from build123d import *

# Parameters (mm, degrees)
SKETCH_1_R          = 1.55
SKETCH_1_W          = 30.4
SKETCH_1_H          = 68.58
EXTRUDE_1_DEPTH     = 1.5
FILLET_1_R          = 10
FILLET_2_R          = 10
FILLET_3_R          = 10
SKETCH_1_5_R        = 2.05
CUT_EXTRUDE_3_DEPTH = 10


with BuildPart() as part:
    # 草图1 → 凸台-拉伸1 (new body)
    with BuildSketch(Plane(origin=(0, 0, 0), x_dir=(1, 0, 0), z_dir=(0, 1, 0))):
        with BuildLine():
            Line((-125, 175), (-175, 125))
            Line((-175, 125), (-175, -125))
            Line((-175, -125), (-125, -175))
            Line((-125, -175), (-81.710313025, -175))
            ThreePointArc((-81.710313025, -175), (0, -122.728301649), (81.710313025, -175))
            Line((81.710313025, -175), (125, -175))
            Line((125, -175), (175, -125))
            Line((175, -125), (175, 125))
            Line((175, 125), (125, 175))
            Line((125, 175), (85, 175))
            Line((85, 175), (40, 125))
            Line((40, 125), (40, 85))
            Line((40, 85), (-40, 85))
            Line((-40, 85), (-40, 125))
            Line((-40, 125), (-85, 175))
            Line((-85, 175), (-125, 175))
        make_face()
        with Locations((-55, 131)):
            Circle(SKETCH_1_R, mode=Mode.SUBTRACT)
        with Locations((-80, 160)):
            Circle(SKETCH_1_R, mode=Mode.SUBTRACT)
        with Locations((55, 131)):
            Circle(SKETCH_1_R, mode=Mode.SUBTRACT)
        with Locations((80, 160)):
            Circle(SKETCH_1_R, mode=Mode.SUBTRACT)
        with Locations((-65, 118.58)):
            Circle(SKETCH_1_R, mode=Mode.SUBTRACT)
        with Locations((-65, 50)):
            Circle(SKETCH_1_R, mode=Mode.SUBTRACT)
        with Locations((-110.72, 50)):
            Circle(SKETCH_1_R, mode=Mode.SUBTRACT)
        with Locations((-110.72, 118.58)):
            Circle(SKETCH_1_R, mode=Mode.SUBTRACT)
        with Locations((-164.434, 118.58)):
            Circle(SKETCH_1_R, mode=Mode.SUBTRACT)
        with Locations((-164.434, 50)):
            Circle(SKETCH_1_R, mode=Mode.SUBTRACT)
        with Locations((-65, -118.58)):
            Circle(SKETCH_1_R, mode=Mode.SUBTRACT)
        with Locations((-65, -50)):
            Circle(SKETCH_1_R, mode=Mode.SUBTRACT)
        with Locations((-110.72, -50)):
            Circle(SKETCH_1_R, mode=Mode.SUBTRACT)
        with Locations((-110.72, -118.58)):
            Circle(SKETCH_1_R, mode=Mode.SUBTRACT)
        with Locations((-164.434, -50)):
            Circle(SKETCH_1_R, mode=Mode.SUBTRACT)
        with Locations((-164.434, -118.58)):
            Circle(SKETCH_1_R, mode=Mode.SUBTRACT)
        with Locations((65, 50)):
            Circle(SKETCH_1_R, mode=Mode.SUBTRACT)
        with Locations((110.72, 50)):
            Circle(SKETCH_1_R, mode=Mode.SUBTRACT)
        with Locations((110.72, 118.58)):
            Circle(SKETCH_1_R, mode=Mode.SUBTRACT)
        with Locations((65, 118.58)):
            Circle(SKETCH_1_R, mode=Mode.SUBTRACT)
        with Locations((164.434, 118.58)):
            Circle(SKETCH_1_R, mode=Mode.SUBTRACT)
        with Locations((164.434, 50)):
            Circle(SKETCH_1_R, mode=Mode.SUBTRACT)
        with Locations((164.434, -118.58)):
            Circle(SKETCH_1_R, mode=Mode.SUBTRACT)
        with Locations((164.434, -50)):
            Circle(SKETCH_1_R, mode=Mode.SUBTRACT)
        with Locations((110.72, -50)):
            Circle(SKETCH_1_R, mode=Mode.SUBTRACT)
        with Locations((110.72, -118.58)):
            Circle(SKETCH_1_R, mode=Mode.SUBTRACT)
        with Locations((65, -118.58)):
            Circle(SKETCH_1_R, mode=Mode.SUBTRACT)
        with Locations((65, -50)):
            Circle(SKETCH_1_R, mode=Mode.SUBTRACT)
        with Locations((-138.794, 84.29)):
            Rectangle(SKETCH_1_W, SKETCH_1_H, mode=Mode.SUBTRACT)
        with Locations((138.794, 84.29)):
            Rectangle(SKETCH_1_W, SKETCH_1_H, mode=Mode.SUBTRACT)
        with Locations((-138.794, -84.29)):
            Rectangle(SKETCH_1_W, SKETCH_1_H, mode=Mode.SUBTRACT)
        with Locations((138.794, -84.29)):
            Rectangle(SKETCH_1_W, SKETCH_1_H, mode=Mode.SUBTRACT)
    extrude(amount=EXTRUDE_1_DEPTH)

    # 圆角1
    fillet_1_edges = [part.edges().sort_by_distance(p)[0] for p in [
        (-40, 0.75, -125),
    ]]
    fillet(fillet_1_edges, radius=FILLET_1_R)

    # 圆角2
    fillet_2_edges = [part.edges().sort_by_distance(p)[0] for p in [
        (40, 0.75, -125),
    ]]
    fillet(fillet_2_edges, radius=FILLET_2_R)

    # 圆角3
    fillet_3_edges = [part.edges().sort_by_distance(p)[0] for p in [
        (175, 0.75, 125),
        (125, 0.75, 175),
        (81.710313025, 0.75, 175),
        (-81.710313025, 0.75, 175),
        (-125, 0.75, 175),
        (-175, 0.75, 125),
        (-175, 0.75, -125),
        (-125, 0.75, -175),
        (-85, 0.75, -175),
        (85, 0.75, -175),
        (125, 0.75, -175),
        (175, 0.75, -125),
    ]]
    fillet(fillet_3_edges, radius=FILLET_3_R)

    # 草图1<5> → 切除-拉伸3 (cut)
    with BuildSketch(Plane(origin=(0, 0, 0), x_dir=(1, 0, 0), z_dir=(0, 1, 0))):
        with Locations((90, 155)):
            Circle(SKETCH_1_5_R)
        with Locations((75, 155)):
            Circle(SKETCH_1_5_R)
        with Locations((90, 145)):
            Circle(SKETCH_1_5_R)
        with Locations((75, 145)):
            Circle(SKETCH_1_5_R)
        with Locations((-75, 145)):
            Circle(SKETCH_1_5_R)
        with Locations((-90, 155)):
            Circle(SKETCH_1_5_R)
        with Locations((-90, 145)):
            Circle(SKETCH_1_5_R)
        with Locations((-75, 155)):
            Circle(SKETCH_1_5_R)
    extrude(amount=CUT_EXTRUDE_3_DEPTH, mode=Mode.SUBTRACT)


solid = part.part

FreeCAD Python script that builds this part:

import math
import FreeCAD as App
import Part
import Sketcher


def edges_at(feature, points):
    """Names of the edges that pass closest to the given points."""
    edges = feature.Shape.Edges
    near = lambda p: min(range(len(edges)), key=lambda i: edges[i].distToShape(Part.Vertex(*p))[0])
    return sorted({f"Edge{near(p) + 1}" for p in points})

doc = App.newDocument("Part")
body = doc.addObject("PartDesign::Body", "Body")

sketch1 = body.newObject("Sketcher::SketchObject", "Sketch")
sketch1.AttachmentSupport = (doc.getObject("XZ_Plane"), [""])
sketch1.MapMode = "FlatFace"
sketch1.addGeometry([
    Part.LineSegment(App.Vector(-125, -175, 0), App.Vector(-175, -125, 0)),
    Part.LineSegment(App.Vector(-175, -125, 0), App.Vector(-175, 125, 0)),
    Part.LineSegment(App.Vector(-175, 125, 0), App.Vector(-125, 175, 0)),
    Part.LineSegment(App.Vector(-125, 175, 0), App.Vector(-81.710313, 175, 0)),
    Part.ArcOfCircle(Part.Circle(App.Vector(0, 212.728302, 0), App.Vector(0, 0, 1), 90), math.radians(-155.215698), math.radians(-24.784302)),
    Part.LineSegment(App.Vector(81.710313, 175, 0), App.Vector(125, 175, 0)),
    Part.LineSegment(App.Vector(125, 175, 0), App.Vector(175, 125, 0)),
    Part.LineSegment(App.Vector(175, 125, 0), App.Vector(175, -125, 0)),
    Part.LineSegment(App.Vector(175, -125, 0), App.Vector(125, -175, 0)),
    Part.LineSegment(App.Vector(125, -175, 0), App.Vector(85, -175, 0)),
    Part.LineSegment(App.Vector(85, -175, 0), App.Vector(40, -125, 0)),
    Part.LineSegment(App.Vector(40, -125, 0), App.Vector(40, -85, 0)),
    Part.LineSegment(App.Vector(40, -85, 0), App.Vector(-40, -85, 0)),
    Part.LineSegment(App.Vector(-40, -85, 0), App.Vector(-40, -125, 0)),
    Part.LineSegment(App.Vector(-40, -125, 0), App.Vector(-85, -175, 0)),
    Part.LineSegment(App.Vector(-85, -175, 0), App.Vector(-125, -175, 0)),
    Part.Circle(App.Vector(-164.434, 118.58, 0), App.Vector(0, 0, 1), 1.55),
    Part.Circle(App.Vector(-110.72, 118.58, 0), App.Vector(0, 0, 1), 1.55),
    Part.LineSegment(App.Vector(-123.594, 118.58, 0), App.Vector(-153.994, 118.58, 0)),
    Part.LineSegment(App.Vector(-153.994, 118.58, 0), App.Vector(-153.994, 50, 0)),
    Part.LineSegment(App.Vector(-153.994, 50, 0), App.Vector(-123.594, 50, 0)),
    Part.LineSegment(App.Vector(-123.594, 50, 0), App.Vector(-123.594, 118.58, 0)),
    Part.Circle(App.Vector(-164.434, 50, 0), App.Vector(0, 0, 1), 1.55),
    Part.Circle(App.Vector(-110.72, 50, 0), App.Vector(0, 0, 1), 1.55),
    Part.Circle(App.Vector(-65, 118.58, 0), App.Vector(0, 0, 1), 1.55),
    Part.Circle(App.Vector(-65, 50, 0), App.Vector(0, 0, 1), 1.55),
    Part.Circle(App.Vector(65, 118.58, 0), App.Vector(0, 0, 1), 1.55),
    Part.Circle(App.Vector(65, 50, 0), App.Vector(0, 0, 1), 1.55),
    Part.Circle(App.Vector(110.72, 118.58, 0), App.Vector(0, 0, 1), 1.55),
    Part.Circle(App.Vector(164.434, 118.58, 0), App.Vector(0, 0, 1), 1.55),
    Part.Circle(App.Vector(110.72, 50, 0), App.Vector(0, 0, 1), 1.55),
    Part.LineSegment(App.Vector(153.994, 118.58, 0), App.Vector(123.594, 118.58, 0)),
    Part.LineSegment(App.Vector(123.594, 118.58, 0), App.Vector(123.594, 50, 0)),
    Part.LineSegment(App.Vector(123.594, 50, 0), App.Vector(153.994, 50, 0)),
    Part.LineSegment(App.Vector(153.994, 50, 0), App.Vector(153.994, 118.58, 0)),
    Part.Circle(App.Vector(164.434, 50, 0), App.Vector(0, 0, 1), 1.55),
    Part.Circle(App.Vector(-164.434, -50, 0), App.Vector(0, 0, 1), 1.55),
    Part.Circle(App.Vector(-110.72, -50, 0), App.Vector(0, 0, 1), 1.55),
    Part.LineSegment(App.Vector(-123.594, -50, 0), App.Vector(-153.994, -50, 0)),
    Part.LineSegment(App.Vector(-153.994, -50, 0), App.Vector(-153.994, -118.58, 0)),
    Part.LineSegment(App.Vector(-153.994, -118.58, 0), App.Vector(-123.594, -118.58, 0)),
    Part.LineSegment(App.Vector(-123.594, -118.58, 0), App.Vector(-123.594, -50, 0)),
    Part.Circle(App.Vector(-65, -50, 0), App.Vector(0, 0, 1), 1.55),
    Part.Circle(App.Vector(-164.434, -118.58, 0), App.Vector(0, 0, 1), 1.55),
    Part.Circle(App.Vector(-110.72, -118.58, 0), App.Vector(0, 0, 1), 1.55),
    Part.Circle(App.Vector(-65, -118.58, 0), App.Vector(0, 0, 1), 1.55),
    Part.Circle(App.Vector(-55, -131, 0), App.Vector(0, 0, 1), 1.55),
    Part.Circle(App.Vector(-80, -160, 0), App.Vector(0, 0, 1), 1.55),
    Part.Circle(App.Vector(65, -50, 0), App.Vector(0, 0, 1), 1.55),
    Part.Circle(App.Vector(110.72, -50, 0), App.Vector(0, 0, 1), 1.55),
    Part.Circle(App.Vector(164.434, -50, 0), App.Vector(0, 0, 1), 1.55),
    Part.LineSegment(App.Vector(153.994, -50, 0), App.Vector(123.594, -50, 0)),
    Part.LineSegment(App.Vector(123.594, -50, 0), App.Vector(123.594, -118.58, 0)),
    Part.LineSegment(App.Vector(123.594, -118.58, 0), App.Vector(153.994, -118.58, 0)),
    Part.LineSegment(App.Vector(153.994, -118.58, 0), App.Vector(153.994, -50, 0)),
    Part.Circle(App.Vector(65, -118.58, 0), App.Vector(0, 0, 1), 1.55),
    Part.Circle(App.Vector(55, -131, 0), App.Vector(0, 0, 1), 1.55),
    Part.Circle(App.Vector(80, -160, 0), App.Vector(0, 0, 1), 1.55),
    Part.Circle(App.Vector(110.72, -118.58, 0), App.Vector(0, 0, 1), 1.55),
    Part.Circle(App.Vector(164.434, -118.58, 0), App.Vector(0, 0, 1), 1.55),
], False)
sketch1.addConstraint([
    Sketcher.Constraint("Coincident", 0, 2, 1, 1),
    Sketcher.Constraint("Coincident", 1, 2, 2, 1),
    Sketcher.Constraint("Coincident", 2, 2, 3, 1),
    Sketcher.Constraint("Coincident", 3, 2, 4, 1),
    Sketcher.Constraint("Coincident", 4, 2, 5, 1),
    Sketcher.Constraint("Coincident", 5, 2, 6, 1),
    Sketcher.Constraint("Coincident", 6, 2, 7, 1),
    Sketcher.Constraint("Coincident", 7, 2, 8, 1),
    Sketcher.Constraint("Coincident", 8, 2, 9, 1),
    Sketcher.Constraint("Coincident", 9, 2, 10, 1),
    Sketcher.Constraint("Coincident", 10, 2, 11, 1),
    Sketcher.Constraint("Coincident", 11, 2, 12, 1),
    Sketcher.Constraint("Coincident", 12, 2, 13, 1),
    Sketcher.Constraint("Coincident", 13, 2, 14, 1),
    Sketcher.Constraint("Coincident", 14, 2, 15, 1),
    Sketcher.Constraint("Coincident", 15, 2, 0, 1),
    Sketcher.Constraint("Coincident", 18, 2, 19, 1),
    Sketcher.Constraint("Coincident", 19, 2, 20, 1),
    Sketcher.Constraint("Coincident", 20, 2, 21, 1),
    Sketcher.Constraint("Coincident", 21, 2, 18, 1),
    Sketcher.Constraint("Coincident", 31, 2, 32, 1),
    Sketcher.Constraint("Coincident", 32, 2, 33, 1),
    Sketcher.Constraint("Coincident", 33, 2, 34, 1),
    Sketcher.Constraint("Coincident", 34, 2, 31, 1),
    Sketcher.Constraint("Coincident", 38, 2, 39, 1),
    Sketcher.Constraint("Coincident", 39, 2, 40, 1),
    Sketcher.Constraint("Coincident", 40, 2, 41, 1),
    Sketcher.Constraint("Coincident", 41, 2, 38, 1),
    Sketcher.Constraint("Coincident", 51, 2, 52, 1),
    Sketcher.Constraint("Coincident", 52, 2, 53, 1),
    Sketcher.Constraint("Coincident", 53, 2, 54, 1),
    Sketcher.Constraint("Coincident", 54, 2, 51, 1),
    Sketcher.Constraint("Vertical", 1),
    Sketcher.Constraint("Horizontal", 3),
    Sketcher.Constraint("Horizontal", 5),
    Sketcher.Constraint("Vertical", 7),
    Sketcher.Constraint("Horizontal", 9),
    Sketcher.Constraint("Vertical", 11),
    Sketcher.Constraint("Horizontal", 12),
    Sketcher.Constraint("Vertical", 13),
    Sketcher.Constraint("Horizontal", 15),
    Sketcher.Constraint("Horizontal", 18),
    Sketcher.Constraint("Vertical", 19),
    Sketcher.Constraint("Horizontal", 20),
    Sketcher.Constraint("Vertical", 21),
    Sketcher.Constraint("Horizontal", 31),
    Sketcher.Constraint("Vertical", 32),
    Sketcher.Constraint("Horizontal", 33),
    Sketcher.Constraint("Vertical", 34),
    Sketcher.Constraint("Horizontal", 38),
    Sketcher.Constraint("Vertical", 39),
    Sketcher.Constraint("Horizontal", 40),
    Sketcher.Constraint("Vertical", 41),
    Sketcher.Constraint("Horizontal", 51),
    Sketcher.Constraint("Vertical", 52),
    Sketcher.Constraint("Horizontal", 53),
    Sketcher.Constraint("Vertical", 54),
    Sketcher.Constraint("Equal", 16, 17),
    Sketcher.Constraint("Equal", 17, 22),
    Sketcher.Constraint("Equal", 22, 23),
    Sketcher.Constraint("Equal", 23, 24),
    Sketcher.Constraint("Equal", 24, 25),
    Sketcher.Constraint("Equal", 25, 26),
    Sketcher.Constraint("Equal", 26, 27),
    Sketcher.Constraint("Equal", 27, 28),
    Sketcher.Constraint("Equal", 28, 29),
    Sketcher.Constraint("Equal", 29, 30),
    Sketcher.Constraint("Equal", 30, 35),
    Sketcher.Constraint("Equal", 35, 36),
    Sketcher.Constraint("Equal", 36, 37),
    Sketcher.Constraint("Equal", 37, 42),
    Sketcher.Constraint("Equal", 42, 43),
    Sketcher.Constraint("Equal", 43, 44),
    Sketcher.Constraint("Equal", 44, 45),
    Sketcher.Constraint("Equal", 45, 46),
    Sketcher.Constraint("Equal", 46, 47),
    Sketcher.Constraint("Equal", 47, 48),
    Sketcher.Constraint("Equal", 48, 49),
    Sketcher.Constraint("Equal", 49, 50),
    Sketcher.Constraint("Equal", 50, 55),
    Sketcher.Constraint("Equal", 55, 56),
    Sketcher.Constraint("Equal", 56, 57),
    Sketcher.Constraint("Equal", 57, 58),
    Sketcher.Constraint("Equal", 58, 59),
    Sketcher.Constraint("Symmetric", 35, 3, 36, 3, -1, 1),
    Sketcher.Constraint("Symmetric", 30, 3, 37, 3, -1, 1),
    Sketcher.Constraint("Symmetric", 27, 3, 42, 3, -1, 1),
    Sketcher.Constraint("Symmetric", 29, 3, 43, 3, -1, 1),
    Sketcher.Constraint("Symmetric", 28, 3, 44, 3, -1, 1),
    Sketcher.Constraint("Symmetric", 26, 3, 45, 3, -1, 1),
    Sketcher.Constraint("Symmetric", 25, 3, 48, 3, -1, 1),
    Sketcher.Constraint("Symmetric", 23, 3, 49, 3, -1, 1),
    Sketcher.Constraint("Symmetric", 22, 3, 50, 3, -1, 1),
    Sketcher.Constraint("Symmetric", 24, 3, 55, 3, -1, 1),
    Sketcher.Constraint("Symmetric", 17, 3, 58, 3, -1, 1),
    Sketcher.Constraint("Symmetric", 16, 3, 59, 3, -1, 1),
    Sketcher.Constraint("Symmetric", 0, 2, 6, 2, -1, 1),
    Sketcher.Constraint("Symmetric", 2, 2, 8, 2, -1, 1),
    Sketcher.Constraint("Symmetric", 5, 2, 15, 2, -1, 1),
    Sketcher.Constraint("Symmetric", 33, 2, 38, 2, -1, 1),
    Sketcher.Constraint("Symmetric", 31, 2, 40, 2, -1, 1),
    Sketcher.Constraint("Symmetric", 20, 2, 51, 2, -1, 1),
    Sketcher.Constraint("Symmetric", 18, 2, 53, 2, -1, 1),
    Sketcher.Constraint("Symmetric", 24, 3, 26, 3, -2),
    Sketcher.Constraint("Symmetric", 25, 3, 27, 3, -2),
    Sketcher.Constraint("Symmetric", 17, 3, 28, 3, -2),
    Sketcher.Constraint("Symmetric", 16, 3, 29, 3, -2),
    Sketcher.Constraint("Symmetric", 23, 3, 30, 3, -2),
    Sketcher.Constraint("Symmetric", 22, 3, 35, 3, -2),
    Sketcher.Constraint("Symmetric", 46, 3, 56, 3, -2),
    Sketcher.Constraint("Symmetric", 47, 3, 57, 3, -2),
    Sketcher.Constraint("Symmetric", 3, 2, 4, 2, -2),
    Sketcher.Constraint("Symmetric", 10, 2, 13, 2, -2),
    Sketcher.Constraint("Symmetric", 21, 2, 31, 2, -2),
    Sketcher.Constraint("Symmetric", 19, 2, 33, 2, -2),
    Sketcher.Constraint("Perpendicular", 0, 2),
    Sketcher.Constraint("Perpendicular", 6, 8),
    Sketcher.Constraint("Horizontal", 16, 3, 17, 3),
    Sketcher.Constraint("Horizontal", 22, 3, 23, 3),
    Sketcher.Constraint("Horizontal", 17, 3, 24, 3),
    Sketcher.Constraint("Horizontal", 23, 3, 25, 3),
    Sketcher.Constraint("Horizontal", 1, 2, 6, 2),
    Sketcher.Constraint("Horizontal", 7, 2, 10, 2),
    Sketcher.Constraint("Horizontal", 29, 3, 18, 2),
    Sketcher.Constraint("Horizontal", 35, 3, 19, 2),
    Sketcher.Constraint("Vertical", 16, 3, 22, 3),
    Sketcher.Constraint("Vertical", 17, 3, 23, 3),
    Sketcher.Constraint("Vertical", 24, 3, 25, 3),
    Sketcher.Constraint("Vertical", 5, 2, 8, 2),
    Sketcher.Constraint("Equal", 9, 15),
    Sketcher.Constraint("Equal", 15, 11),
    Sketcher.Constraint("Radius", 4, 90.0),
    Sketcher.Constraint("Diameter", 16, 3.1),
    Sketcher.Constraint("DistanceX", 9, 2, 9, 1, 40.0),
    Sketcher.Constraint("DistanceX", 12, 2, 12, 1, 80.0),
    Sketcher.Constraint("DistanceY", 1, 1, 1, 2, 250.0),
    Sketcher.Constraint("DistanceX", 18, 2, 18, 1, 30.4),
    Sketcher.Constraint("DistanceY", -1, 1, 22, 3, 50.0),
    Sketcher.Constraint("DistanceX", 24, 3, -1, 1, 65.0),
    Sketcher.Constraint("DistanceX", 46, 3, -1, 1, 55.0),
    Sketcher.Constraint("DistanceY", 46, 3, -1, 1, 131.0),
    Sketcher.Constraint("DistanceX", 47, 3, -1, 1, 80.0),
    Sketcher.Constraint("DistanceY", 47, 3, -1, 1, 160.0),
    Sketcher.Constraint("DistanceX", 0, 2, -1, 1, 175.0),
    Sketcher.Constraint("DistanceX", 2, 2, -1, 1, 125.0),
    Sketcher.Constraint("DistanceY", 19, 2, 19, 1, 68.58),
    Sketcher.Constraint("DistanceX", 17, 3, -1, 1, 110.72),
    Sketcher.Constraint("DistanceX", 16, 3, -1, 1, 164.434),
    Sketcher.Constraint("DistanceX", 18, 2, -1, 1, 153.994),
    Sketcher.Constraint("DistanceY", -1, 1, 4, 3, 212.728302),
])
pad1 = body.newObject("PartDesign::Pad", "Pad")
pad1.Profile = sketch1
pad1.Length = 1.5
pad1.Reversed = True
doc.recompute()

fillet = body.newObject("PartDesign::Fillet", "Fillet")
fillet.Base = (pad1, edges_at(pad1, [(-40, 0.75, -125)]))
fillet.Radius = 10
doc.recompute()

fillet2 = body.newObject("PartDesign::Fillet", "Fillet001")
fillet2.Base = (fillet, edges_at(fillet, [(40, 0.75, -125)]))
fillet2.Radius = 10
doc.recompute()

fillet3 = body.newObject("PartDesign::Fillet", "Fillet002")
fillet3.Base = (fillet2, edges_at(fillet2, [
    (175, 0.75, 125),
    (125, 0.75, 175),
    (81.71, 0.75, 175),
    (-81.71, 0.75, 175),
    (-125, 0.75, 175),
    (-175, 0.75, 125),
    (-175, 0.75, -125),
    (-125, 0.75, -175),
    (-85, 0.75, -175),
    (85, 0.75, -175),
    (125, 0.75, -175),
    (175, 0.75, -125),
]))
fillet3.Radius = 10

sketch2 = body.newObject("Sketcher::SketchObject", "Sketch001")
sketch2.AttachmentSupport = (doc.getObject("XZ_Plane"), [""])
sketch2.MapMode = "FlatFace"
sketch2.addGeometry([
    Part.Circle(App.Vector(90, -155, 0), App.Vector(0, 0, 1), 2.05),
    Part.Circle(App.Vector(75, -155, 0), App.Vector(0, 0, 1), 2.05),
    Part.Circle(App.Vector(90, -145, 0), App.Vector(0, 0, 1), 2.05),
    Part.Circle(App.Vector(75, -145, 0), App.Vector(0, 0, 1), 2.05),
    Part.Circle(App.Vector(-75, -145, 0), App.Vector(0, 0, 1), 2.05),
    Part.Circle(App.Vector(-90, -155, 0), App.Vector(0, 0, 1), 2.05),
    Part.Circle(App.Vector(-90, -145, 0), App.Vector(0, 0, 1), 2.05),
    Part.Circle(App.Vector(-75, -155, 0), App.Vector(0, 0, 1), 2.05),
], False)
sketch2.addConstraint([
    Sketcher.Constraint("Equal", 0, 1),
    Sketcher.Constraint("Equal", 1, 2),
    Sketcher.Constraint("Equal", 2, 3),
    Sketcher.Constraint("Equal", 3, 4),
    Sketcher.Constraint("Equal", 4, 5),
    Sketcher.Constraint("Equal", 5, 6),
    Sketcher.Constraint("Equal", 6, 7),
    Sketcher.Constraint("Symmetric", 3, 3, 4, 3, -2),
    Sketcher.Constraint("Symmetric", 0, 3, 5, 3, -2),
    Sketcher.Constraint("Symmetric", 2, 3, 6, 3, -2),
    Sketcher.Constraint("Symmetric", 1, 3, 7, 3, -2),
    Sketcher.Constraint("Horizontal", 0, 3, 1, 3),
    Sketcher.Constraint("Horizontal", 2, 3, 3, 3),
    Sketcher.Constraint("Vertical", 0, 3, 2, 3),
    Sketcher.Constraint("Vertical", 1, 3, 3, 3),
    Sketcher.Constraint("Diameter", 0, 4.1),
    Sketcher.Constraint("DistanceX", -1, 1, 0, 3, 90.0),
    Sketcher.Constraint("DistanceY", 0, 3, -1, 1, 155.0),
    Sketcher.Constraint("DistanceX", -1, 1, 1, 3, 75.0),
    Sketcher.Constraint("DistanceY", 2, 3, -1, 1, 145.0),
])
pocket1 = body.newObject("PartDesign::Pocket", "Pocket")
pocket1.Profile = sketch2
pocket1.Length = 10

doc.recompute()
